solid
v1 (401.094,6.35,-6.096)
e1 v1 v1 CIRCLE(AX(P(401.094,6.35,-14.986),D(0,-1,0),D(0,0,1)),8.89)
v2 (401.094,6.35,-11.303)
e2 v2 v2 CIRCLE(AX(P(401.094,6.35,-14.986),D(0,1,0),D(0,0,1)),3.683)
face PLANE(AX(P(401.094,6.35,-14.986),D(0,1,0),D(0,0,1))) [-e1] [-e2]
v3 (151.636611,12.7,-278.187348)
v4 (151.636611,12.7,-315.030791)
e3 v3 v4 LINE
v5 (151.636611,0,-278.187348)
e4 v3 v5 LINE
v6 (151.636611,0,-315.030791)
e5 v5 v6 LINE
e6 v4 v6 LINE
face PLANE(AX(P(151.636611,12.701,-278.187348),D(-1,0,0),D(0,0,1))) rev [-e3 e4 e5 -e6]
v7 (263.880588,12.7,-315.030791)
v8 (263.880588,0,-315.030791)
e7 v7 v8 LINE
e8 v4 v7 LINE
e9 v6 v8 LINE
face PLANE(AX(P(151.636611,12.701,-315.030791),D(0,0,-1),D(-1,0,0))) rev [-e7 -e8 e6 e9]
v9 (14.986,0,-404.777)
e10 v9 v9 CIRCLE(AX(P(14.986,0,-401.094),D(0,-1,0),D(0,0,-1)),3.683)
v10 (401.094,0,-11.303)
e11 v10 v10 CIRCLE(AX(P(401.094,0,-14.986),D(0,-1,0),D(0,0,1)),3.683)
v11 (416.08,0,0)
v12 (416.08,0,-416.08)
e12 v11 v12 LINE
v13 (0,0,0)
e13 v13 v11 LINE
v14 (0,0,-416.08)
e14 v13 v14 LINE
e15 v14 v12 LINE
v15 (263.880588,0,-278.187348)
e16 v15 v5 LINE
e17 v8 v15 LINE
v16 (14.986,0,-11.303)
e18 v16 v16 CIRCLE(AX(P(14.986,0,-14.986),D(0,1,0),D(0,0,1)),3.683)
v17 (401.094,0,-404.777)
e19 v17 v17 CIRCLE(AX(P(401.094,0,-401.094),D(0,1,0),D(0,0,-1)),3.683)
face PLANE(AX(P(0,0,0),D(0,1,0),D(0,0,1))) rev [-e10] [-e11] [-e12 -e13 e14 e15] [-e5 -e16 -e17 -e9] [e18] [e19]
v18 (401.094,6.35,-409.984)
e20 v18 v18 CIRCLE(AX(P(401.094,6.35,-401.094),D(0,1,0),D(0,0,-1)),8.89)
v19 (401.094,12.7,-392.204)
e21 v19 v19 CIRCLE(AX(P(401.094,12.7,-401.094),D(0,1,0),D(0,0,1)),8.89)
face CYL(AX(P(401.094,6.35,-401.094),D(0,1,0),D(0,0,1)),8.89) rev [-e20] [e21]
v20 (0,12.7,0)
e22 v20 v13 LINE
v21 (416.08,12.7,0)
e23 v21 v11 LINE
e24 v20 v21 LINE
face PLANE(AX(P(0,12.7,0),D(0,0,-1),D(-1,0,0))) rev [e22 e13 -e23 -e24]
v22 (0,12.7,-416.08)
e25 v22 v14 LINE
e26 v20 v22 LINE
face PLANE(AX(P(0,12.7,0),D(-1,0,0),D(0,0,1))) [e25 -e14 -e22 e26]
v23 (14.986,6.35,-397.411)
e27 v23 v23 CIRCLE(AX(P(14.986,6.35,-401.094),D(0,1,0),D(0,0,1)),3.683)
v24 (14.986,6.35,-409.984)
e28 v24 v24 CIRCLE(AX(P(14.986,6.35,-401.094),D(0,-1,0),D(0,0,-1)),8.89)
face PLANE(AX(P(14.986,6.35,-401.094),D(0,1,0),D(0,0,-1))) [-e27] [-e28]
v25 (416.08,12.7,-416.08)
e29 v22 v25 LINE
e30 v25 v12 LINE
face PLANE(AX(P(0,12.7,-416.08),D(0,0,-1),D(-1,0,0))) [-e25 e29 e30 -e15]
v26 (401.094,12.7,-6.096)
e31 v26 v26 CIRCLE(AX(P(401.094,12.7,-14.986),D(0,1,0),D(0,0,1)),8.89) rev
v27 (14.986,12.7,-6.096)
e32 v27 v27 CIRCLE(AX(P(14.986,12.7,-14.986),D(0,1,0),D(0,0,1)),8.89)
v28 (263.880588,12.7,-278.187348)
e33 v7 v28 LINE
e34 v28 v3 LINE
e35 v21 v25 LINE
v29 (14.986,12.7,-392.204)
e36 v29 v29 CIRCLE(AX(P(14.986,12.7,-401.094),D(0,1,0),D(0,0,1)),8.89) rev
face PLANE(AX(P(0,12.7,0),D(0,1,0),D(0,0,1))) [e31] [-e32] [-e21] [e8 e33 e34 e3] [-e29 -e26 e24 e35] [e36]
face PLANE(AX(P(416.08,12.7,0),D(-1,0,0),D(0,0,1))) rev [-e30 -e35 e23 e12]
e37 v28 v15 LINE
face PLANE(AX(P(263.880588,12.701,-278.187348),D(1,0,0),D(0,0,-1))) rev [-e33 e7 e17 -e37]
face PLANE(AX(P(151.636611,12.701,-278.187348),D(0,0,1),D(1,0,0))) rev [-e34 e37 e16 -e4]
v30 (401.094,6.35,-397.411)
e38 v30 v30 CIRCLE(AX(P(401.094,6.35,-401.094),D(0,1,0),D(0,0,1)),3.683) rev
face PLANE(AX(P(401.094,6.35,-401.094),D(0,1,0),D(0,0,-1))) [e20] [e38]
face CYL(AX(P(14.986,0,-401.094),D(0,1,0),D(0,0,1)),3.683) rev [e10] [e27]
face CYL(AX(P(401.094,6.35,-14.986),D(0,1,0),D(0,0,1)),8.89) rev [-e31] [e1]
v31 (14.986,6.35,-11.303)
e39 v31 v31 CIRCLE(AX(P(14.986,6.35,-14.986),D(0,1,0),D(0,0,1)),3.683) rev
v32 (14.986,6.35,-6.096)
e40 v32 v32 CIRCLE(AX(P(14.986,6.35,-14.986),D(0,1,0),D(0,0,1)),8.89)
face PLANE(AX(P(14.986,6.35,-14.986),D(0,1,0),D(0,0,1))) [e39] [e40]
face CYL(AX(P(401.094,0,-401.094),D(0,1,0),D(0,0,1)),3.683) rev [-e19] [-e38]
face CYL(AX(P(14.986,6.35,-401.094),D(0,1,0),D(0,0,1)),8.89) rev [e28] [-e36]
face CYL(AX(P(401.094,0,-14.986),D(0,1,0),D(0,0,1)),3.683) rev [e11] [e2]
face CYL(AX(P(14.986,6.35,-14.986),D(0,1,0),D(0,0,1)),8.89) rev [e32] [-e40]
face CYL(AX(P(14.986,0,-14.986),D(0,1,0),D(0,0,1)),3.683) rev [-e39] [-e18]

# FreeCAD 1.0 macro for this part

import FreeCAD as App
import Part
import Sketcher
from FreeCAD import Vector
Q = App.Units.Quantity

doc = App.newDocument("Part")
params = doc.addObject("Spreadsheet::Sheet", "Params")
for row, (alias, value) in enumerate([
    ("pad1_length", "0.5 in"),
    ("sketch2_diameter", "0.29 in"),
    ("sketch3_diameter", "0.7 in"),
    ("pocket2_length", "0.5 in"),
    ("sketch4_diameter", "0.29 in"),
    ("sketch5_diameter", "0.7 in"),
    ("pocket4_length", "0.5 in"),
], start=1):
    params.set(f"A{row}", alias)
    params.set(f"B{row}", "=" + value)
    params.setAlias(f"B{row}", alias)

body = doc.addObject("PartDesign::Body", "Body")

sketch1 = body.newObject("Sketcher::SketchObject", "Sketch")
sketch1.AttachmentSupport = (doc.getObject("XZ_Plane"), [""])
sketch1.MapMode = "FlatFace"
sketch1.addGeometry(Part.LineSegment(Vector(0, -416, 0), Vector(0, 0, 0)), False)
sketch1.addGeometry(Part.LineSegment(Vector(0, 0, 0), Vector(416, 0, 0)), False)
sketch1.addGeometry(Part.LineSegment(Vector(416, 0, 0), Vector(416, -416, 0)), False)
sketch1.addGeometry(Part.LineSegment(Vector(416, -416, 0), Vector(0, -416, 0)), False)
sketch1.addConstraint(Sketcher.Constraint("Coincident", 0, 2, 1, 1))
sketch1.addConstraint(Sketcher.Constraint("Coincident", 1, 2, 2, 1))
sketch1.addConstraint(Sketcher.Constraint("Coincident", 2, 2, 3, 1))
sketch1.addConstraint(Sketcher.Constraint("Coincident", 3, 2, 0, 1))
sketch1.addConstraint(Sketcher.Constraint("Vertical", 0))
sketch1.addConstraint(Sketcher.Constraint("Horizontal", 1))
sketch1.addConstraint(Sketcher.Constraint("Vertical", 2))
sketch1.addConstraint(Sketcher.Constraint("Horizontal", 3))
sketch1.addConstraint(Sketcher.Constraint("Coincident", 0, 2, -1, 1))
sketch1.addConstraint(Sketcher.Constraint("Equal", 3, 0))
sketch1.addConstraint(Sketcher.Constraint("DistanceX", 1, 1, 1, 2, Q("416.08 mm")))
pad1 = body.newObject("PartDesign::Pad", "Pad")
pad1.Profile = sketch1
pad1.setExpression("Length", "Params.pad1_length")
pad1.Reversed = True

sketch2 = body.newObject("Sketcher::SketchObject", "Sketch001")
sketch2.AttachmentSupport = (doc.getObject("XZ_Plane"), [""])
sketch2.MapMode = "FlatFace"
sketch2.AttachmentOffset = App.Placement(Vector(0, 0, -0.5 * 25.4), App.Rotation())
sketch2.addGeometry(Part.Circle(Vector(15, -15, 0), Vector(0, 0, 1), 3.7), False)
sketch2.addConstraint(Sketcher.Constraint("Diameter", 0, Q("0.29 in")))
sketch2.addConstraint(Sketcher.Constraint("DistanceX", -1, 1, 0, 3, Q("0.59 in")))
sketch2.addConstraint(Sketcher.Constraint("DistanceY", 0, 3, -1, 1, Q("0.59 in")))
sketch2.setExpression("Constraints[0]", "Params.sketch2_diameter")
pocket1 = body.newObject("PartDesign::Pocket", "Pocket")
pocket1.Profile = sketch2
pocket1.Type = "ThroughAll"
pocket1.Reversed = True

sketch3 = body.newObject("Sketcher::SketchObject", "Sketch002")
sketch3.AttachmentSupport = (doc.getObject("XZ_Plane"), [""])
sketch3.MapMode = "FlatFace"
sketch3.AttachmentOffset = App.Placement(Vector(0, 0, -0.5 * 25.4), App.Rotation())
sketch3.addGeometry(Part.Circle(Vector(15, -15, 0), Vector(0, 0, 1), 9), False)
sketch3.addConstraint(Sketcher.Constraint("Diameter", 0, Q("0.7 in")))
sketch3.addConstraint(Sketcher.Constraint("DistanceX", -1, 1, 0, 3, Q("0.59 in")))
sketch3.addConstraint(Sketcher.Constraint("DistanceY", 0, 3, -1, 1, Q("0.59 in")))
sketch3.setExpression("Constraints[0]", "Params.sketch3_diameter")
pocket2 = body.newObject("PartDesign::Pocket", "Pocket001")
pocket2.Profile = sketch3
pocket2.setExpression("Length", "Params.pocket2_length")
pocket2.Midplane = True
doc.recompute()

datumplane = body.newObject("PartDesign::Plane", "DatumPlane")
datumplane.AttachmentSupport = (doc.getObject("XY_Plane"), [""])
datumplane.MapMode = "FlatFace"
datumplane.AttachmentOffset = App.Placement(Vector(0, 0, -208.04), App.Rotation())
mirrored = body.newObject("PartDesign::Mirrored", "Mirrored")
mirrored.Originals = [pocket1, pocket2]
mirrored.MirrorPlane = (datumplane, [""])
body.Tip = mirrored
doc.recompute()

datumplane2 = body.newObject("PartDesign::Plane", "DatumPlane001")
datumplane2.AttachmentSupport = (doc.getObject("YZ_Plane"), [""])
datumplane2.MapMode = "FlatFace"
datumplane2.AttachmentOffset = App.Placement(Vector(0, 0, 208.04), App.Rotation())
mirrored2 = body.newObject("PartDesign::Mirrored", "Mirrored001")
mirrored2.Originals = [pocket1, pocket2]
mirrored2.MirrorPlane = (datumplane2, [""])
body.Tip = mirrored2

sketch4 = body.newObject("Sketcher::SketchObject", "Sketch003")
sketch4.AttachmentSupport = (doc.getObject("XZ_Plane"), [""])
sketch4.MapMode = "FlatFace"
sketch4.AttachmentOffset = App.Placement(Vector(0, 0, -0.5 * 25.4), App.Rotation())
sketch4.addGeometry(Part.Circle(Vector(401.1, -401.1, 0), Vector(0, 0, 1), 3.7), False)
sketch4.addConstraint(Sketcher.Constraint("Diameter", 0, Q("0.29 in")))
sketch4.addConstraint(Sketcher.Constraint("DistanceX", -1, 1, 0, 3, Q("401.094 mm")))
sketch4.addConstraint(Sketcher.Constraint("DistanceY", 0, 3, -1, 1, Q("401.094 mm")))
sketch4.setExpression("Constraints[0]", "Params.sketch4_diameter")
pocket3 = body.newObject("PartDesign::Pocket", "Pocket002")
pocket3.Profile = sketch4
pocket3.Type = "ThroughAll"
pocket3.Reversed = True

sketch5 = body.newObject("Sketcher::SketchObject", "Sketch004")
sketch5.AttachmentSupport = (doc.getObject("XZ_Plane"), [""])
sketch5.MapMode = "FlatFace"
sketch5.AttachmentOffset = App.Placement(Vector(0, 0, -0.5 * 25.4), App.Rotation())
sketch5.addGeometry(Part.Circle(Vector(401, -401, 0), Vector(0, 0, 1), 9), False)
sketch5.addConstraint(Sketcher.Constraint("Diameter", 0, Q("0.7 in")))
sketch5.addConstraint(Sketcher.Constraint("DistanceX", -1, 1, 0, 3, Q("401.094 mm")))
sketch5.addConstraint(Sketcher.Constraint("DistanceY", 0, 3, -1, 1, Q("401.094 mm")))
sketch5.setExpression("Constraints[0]", "Params.sketch5_diameter")
pocket4 = body.newObject("PartDesign::Pocket", "Pocket003")
pocket4.Profile = sketch5
pocket4.setExpression("Length", "Params.pocket4_length")
pocket4.Midplane = True

sketch6 = body.newObject("Sketcher::SketchObject", "Sketch005")
sketch6.AttachmentSupport = (doc.getObject("XZ_Plane"), [""])
sketch6.MapMode = "FlatFace"
sketch6.addGeometry(Part.LineSegment(Vector(152, -278, 0), Vector(152, -315, 0)), False)
sketch6.addGeometry(Part.LineSegment(Vector(152, -315, 0), Vector(264, -315, 0)), False)
sketch6.addGeometry(Part.LineSegment(Vector(264, -315, 0), Vector(264, -278, 0)), False)
sketch6.addGeometry(Part.LineSegment(Vector(264, -278, 0), Vector(152, -278, 0)), False)
sketch6.addConstraint(Sketcher.Constraint("Coincident", 0, 2, 1, 1))
sketch6.addConstraint(Sketcher.Constraint("Coincident", 1, 2, 2, 1))
sketch6.addConstraint(Sketcher.Constraint("Coincident", 2, 2, 3, 1))
sketch6.addConstraint(Sketcher.Constraint("Coincident", 3, 2, 0, 1))
sketch6.addConstraint(Sketcher.Constraint("Vertical", 0))
sketch6.addConstraint(Sketcher.Constraint("Horizontal", 1))
sketch6.addConstraint(Sketcher.Constraint("Vertical", 2))
sketch6.addConstraint(Sketcher.Constraint("Horizontal", 3))
sketch6.addConstraint(Sketcher.Constraint("DistanceX", 1, 1, 1, 2, Q("112.243977 mm")))
sketch6.addConstraint(Sketcher.Constraint("DistanceY", 0, 2, 0, 1, Q("36.843443 mm")))
sketch6.addConstraint(Sketcher.Constraint("DistanceX", -1, 1, 0, 2, Q("151.636611 mm")))
sketch6.addConstraint(Sketcher.Constraint("DistanceY", 0, 2, -1, 1, Q("315.030791 mm")))
pocket5 = body.newObject("PartDesign::Pocket", "Pocket004")
pocket5.Profile = sketch6
pocket5.Type = "UpToFirst"

doc.recompute()
